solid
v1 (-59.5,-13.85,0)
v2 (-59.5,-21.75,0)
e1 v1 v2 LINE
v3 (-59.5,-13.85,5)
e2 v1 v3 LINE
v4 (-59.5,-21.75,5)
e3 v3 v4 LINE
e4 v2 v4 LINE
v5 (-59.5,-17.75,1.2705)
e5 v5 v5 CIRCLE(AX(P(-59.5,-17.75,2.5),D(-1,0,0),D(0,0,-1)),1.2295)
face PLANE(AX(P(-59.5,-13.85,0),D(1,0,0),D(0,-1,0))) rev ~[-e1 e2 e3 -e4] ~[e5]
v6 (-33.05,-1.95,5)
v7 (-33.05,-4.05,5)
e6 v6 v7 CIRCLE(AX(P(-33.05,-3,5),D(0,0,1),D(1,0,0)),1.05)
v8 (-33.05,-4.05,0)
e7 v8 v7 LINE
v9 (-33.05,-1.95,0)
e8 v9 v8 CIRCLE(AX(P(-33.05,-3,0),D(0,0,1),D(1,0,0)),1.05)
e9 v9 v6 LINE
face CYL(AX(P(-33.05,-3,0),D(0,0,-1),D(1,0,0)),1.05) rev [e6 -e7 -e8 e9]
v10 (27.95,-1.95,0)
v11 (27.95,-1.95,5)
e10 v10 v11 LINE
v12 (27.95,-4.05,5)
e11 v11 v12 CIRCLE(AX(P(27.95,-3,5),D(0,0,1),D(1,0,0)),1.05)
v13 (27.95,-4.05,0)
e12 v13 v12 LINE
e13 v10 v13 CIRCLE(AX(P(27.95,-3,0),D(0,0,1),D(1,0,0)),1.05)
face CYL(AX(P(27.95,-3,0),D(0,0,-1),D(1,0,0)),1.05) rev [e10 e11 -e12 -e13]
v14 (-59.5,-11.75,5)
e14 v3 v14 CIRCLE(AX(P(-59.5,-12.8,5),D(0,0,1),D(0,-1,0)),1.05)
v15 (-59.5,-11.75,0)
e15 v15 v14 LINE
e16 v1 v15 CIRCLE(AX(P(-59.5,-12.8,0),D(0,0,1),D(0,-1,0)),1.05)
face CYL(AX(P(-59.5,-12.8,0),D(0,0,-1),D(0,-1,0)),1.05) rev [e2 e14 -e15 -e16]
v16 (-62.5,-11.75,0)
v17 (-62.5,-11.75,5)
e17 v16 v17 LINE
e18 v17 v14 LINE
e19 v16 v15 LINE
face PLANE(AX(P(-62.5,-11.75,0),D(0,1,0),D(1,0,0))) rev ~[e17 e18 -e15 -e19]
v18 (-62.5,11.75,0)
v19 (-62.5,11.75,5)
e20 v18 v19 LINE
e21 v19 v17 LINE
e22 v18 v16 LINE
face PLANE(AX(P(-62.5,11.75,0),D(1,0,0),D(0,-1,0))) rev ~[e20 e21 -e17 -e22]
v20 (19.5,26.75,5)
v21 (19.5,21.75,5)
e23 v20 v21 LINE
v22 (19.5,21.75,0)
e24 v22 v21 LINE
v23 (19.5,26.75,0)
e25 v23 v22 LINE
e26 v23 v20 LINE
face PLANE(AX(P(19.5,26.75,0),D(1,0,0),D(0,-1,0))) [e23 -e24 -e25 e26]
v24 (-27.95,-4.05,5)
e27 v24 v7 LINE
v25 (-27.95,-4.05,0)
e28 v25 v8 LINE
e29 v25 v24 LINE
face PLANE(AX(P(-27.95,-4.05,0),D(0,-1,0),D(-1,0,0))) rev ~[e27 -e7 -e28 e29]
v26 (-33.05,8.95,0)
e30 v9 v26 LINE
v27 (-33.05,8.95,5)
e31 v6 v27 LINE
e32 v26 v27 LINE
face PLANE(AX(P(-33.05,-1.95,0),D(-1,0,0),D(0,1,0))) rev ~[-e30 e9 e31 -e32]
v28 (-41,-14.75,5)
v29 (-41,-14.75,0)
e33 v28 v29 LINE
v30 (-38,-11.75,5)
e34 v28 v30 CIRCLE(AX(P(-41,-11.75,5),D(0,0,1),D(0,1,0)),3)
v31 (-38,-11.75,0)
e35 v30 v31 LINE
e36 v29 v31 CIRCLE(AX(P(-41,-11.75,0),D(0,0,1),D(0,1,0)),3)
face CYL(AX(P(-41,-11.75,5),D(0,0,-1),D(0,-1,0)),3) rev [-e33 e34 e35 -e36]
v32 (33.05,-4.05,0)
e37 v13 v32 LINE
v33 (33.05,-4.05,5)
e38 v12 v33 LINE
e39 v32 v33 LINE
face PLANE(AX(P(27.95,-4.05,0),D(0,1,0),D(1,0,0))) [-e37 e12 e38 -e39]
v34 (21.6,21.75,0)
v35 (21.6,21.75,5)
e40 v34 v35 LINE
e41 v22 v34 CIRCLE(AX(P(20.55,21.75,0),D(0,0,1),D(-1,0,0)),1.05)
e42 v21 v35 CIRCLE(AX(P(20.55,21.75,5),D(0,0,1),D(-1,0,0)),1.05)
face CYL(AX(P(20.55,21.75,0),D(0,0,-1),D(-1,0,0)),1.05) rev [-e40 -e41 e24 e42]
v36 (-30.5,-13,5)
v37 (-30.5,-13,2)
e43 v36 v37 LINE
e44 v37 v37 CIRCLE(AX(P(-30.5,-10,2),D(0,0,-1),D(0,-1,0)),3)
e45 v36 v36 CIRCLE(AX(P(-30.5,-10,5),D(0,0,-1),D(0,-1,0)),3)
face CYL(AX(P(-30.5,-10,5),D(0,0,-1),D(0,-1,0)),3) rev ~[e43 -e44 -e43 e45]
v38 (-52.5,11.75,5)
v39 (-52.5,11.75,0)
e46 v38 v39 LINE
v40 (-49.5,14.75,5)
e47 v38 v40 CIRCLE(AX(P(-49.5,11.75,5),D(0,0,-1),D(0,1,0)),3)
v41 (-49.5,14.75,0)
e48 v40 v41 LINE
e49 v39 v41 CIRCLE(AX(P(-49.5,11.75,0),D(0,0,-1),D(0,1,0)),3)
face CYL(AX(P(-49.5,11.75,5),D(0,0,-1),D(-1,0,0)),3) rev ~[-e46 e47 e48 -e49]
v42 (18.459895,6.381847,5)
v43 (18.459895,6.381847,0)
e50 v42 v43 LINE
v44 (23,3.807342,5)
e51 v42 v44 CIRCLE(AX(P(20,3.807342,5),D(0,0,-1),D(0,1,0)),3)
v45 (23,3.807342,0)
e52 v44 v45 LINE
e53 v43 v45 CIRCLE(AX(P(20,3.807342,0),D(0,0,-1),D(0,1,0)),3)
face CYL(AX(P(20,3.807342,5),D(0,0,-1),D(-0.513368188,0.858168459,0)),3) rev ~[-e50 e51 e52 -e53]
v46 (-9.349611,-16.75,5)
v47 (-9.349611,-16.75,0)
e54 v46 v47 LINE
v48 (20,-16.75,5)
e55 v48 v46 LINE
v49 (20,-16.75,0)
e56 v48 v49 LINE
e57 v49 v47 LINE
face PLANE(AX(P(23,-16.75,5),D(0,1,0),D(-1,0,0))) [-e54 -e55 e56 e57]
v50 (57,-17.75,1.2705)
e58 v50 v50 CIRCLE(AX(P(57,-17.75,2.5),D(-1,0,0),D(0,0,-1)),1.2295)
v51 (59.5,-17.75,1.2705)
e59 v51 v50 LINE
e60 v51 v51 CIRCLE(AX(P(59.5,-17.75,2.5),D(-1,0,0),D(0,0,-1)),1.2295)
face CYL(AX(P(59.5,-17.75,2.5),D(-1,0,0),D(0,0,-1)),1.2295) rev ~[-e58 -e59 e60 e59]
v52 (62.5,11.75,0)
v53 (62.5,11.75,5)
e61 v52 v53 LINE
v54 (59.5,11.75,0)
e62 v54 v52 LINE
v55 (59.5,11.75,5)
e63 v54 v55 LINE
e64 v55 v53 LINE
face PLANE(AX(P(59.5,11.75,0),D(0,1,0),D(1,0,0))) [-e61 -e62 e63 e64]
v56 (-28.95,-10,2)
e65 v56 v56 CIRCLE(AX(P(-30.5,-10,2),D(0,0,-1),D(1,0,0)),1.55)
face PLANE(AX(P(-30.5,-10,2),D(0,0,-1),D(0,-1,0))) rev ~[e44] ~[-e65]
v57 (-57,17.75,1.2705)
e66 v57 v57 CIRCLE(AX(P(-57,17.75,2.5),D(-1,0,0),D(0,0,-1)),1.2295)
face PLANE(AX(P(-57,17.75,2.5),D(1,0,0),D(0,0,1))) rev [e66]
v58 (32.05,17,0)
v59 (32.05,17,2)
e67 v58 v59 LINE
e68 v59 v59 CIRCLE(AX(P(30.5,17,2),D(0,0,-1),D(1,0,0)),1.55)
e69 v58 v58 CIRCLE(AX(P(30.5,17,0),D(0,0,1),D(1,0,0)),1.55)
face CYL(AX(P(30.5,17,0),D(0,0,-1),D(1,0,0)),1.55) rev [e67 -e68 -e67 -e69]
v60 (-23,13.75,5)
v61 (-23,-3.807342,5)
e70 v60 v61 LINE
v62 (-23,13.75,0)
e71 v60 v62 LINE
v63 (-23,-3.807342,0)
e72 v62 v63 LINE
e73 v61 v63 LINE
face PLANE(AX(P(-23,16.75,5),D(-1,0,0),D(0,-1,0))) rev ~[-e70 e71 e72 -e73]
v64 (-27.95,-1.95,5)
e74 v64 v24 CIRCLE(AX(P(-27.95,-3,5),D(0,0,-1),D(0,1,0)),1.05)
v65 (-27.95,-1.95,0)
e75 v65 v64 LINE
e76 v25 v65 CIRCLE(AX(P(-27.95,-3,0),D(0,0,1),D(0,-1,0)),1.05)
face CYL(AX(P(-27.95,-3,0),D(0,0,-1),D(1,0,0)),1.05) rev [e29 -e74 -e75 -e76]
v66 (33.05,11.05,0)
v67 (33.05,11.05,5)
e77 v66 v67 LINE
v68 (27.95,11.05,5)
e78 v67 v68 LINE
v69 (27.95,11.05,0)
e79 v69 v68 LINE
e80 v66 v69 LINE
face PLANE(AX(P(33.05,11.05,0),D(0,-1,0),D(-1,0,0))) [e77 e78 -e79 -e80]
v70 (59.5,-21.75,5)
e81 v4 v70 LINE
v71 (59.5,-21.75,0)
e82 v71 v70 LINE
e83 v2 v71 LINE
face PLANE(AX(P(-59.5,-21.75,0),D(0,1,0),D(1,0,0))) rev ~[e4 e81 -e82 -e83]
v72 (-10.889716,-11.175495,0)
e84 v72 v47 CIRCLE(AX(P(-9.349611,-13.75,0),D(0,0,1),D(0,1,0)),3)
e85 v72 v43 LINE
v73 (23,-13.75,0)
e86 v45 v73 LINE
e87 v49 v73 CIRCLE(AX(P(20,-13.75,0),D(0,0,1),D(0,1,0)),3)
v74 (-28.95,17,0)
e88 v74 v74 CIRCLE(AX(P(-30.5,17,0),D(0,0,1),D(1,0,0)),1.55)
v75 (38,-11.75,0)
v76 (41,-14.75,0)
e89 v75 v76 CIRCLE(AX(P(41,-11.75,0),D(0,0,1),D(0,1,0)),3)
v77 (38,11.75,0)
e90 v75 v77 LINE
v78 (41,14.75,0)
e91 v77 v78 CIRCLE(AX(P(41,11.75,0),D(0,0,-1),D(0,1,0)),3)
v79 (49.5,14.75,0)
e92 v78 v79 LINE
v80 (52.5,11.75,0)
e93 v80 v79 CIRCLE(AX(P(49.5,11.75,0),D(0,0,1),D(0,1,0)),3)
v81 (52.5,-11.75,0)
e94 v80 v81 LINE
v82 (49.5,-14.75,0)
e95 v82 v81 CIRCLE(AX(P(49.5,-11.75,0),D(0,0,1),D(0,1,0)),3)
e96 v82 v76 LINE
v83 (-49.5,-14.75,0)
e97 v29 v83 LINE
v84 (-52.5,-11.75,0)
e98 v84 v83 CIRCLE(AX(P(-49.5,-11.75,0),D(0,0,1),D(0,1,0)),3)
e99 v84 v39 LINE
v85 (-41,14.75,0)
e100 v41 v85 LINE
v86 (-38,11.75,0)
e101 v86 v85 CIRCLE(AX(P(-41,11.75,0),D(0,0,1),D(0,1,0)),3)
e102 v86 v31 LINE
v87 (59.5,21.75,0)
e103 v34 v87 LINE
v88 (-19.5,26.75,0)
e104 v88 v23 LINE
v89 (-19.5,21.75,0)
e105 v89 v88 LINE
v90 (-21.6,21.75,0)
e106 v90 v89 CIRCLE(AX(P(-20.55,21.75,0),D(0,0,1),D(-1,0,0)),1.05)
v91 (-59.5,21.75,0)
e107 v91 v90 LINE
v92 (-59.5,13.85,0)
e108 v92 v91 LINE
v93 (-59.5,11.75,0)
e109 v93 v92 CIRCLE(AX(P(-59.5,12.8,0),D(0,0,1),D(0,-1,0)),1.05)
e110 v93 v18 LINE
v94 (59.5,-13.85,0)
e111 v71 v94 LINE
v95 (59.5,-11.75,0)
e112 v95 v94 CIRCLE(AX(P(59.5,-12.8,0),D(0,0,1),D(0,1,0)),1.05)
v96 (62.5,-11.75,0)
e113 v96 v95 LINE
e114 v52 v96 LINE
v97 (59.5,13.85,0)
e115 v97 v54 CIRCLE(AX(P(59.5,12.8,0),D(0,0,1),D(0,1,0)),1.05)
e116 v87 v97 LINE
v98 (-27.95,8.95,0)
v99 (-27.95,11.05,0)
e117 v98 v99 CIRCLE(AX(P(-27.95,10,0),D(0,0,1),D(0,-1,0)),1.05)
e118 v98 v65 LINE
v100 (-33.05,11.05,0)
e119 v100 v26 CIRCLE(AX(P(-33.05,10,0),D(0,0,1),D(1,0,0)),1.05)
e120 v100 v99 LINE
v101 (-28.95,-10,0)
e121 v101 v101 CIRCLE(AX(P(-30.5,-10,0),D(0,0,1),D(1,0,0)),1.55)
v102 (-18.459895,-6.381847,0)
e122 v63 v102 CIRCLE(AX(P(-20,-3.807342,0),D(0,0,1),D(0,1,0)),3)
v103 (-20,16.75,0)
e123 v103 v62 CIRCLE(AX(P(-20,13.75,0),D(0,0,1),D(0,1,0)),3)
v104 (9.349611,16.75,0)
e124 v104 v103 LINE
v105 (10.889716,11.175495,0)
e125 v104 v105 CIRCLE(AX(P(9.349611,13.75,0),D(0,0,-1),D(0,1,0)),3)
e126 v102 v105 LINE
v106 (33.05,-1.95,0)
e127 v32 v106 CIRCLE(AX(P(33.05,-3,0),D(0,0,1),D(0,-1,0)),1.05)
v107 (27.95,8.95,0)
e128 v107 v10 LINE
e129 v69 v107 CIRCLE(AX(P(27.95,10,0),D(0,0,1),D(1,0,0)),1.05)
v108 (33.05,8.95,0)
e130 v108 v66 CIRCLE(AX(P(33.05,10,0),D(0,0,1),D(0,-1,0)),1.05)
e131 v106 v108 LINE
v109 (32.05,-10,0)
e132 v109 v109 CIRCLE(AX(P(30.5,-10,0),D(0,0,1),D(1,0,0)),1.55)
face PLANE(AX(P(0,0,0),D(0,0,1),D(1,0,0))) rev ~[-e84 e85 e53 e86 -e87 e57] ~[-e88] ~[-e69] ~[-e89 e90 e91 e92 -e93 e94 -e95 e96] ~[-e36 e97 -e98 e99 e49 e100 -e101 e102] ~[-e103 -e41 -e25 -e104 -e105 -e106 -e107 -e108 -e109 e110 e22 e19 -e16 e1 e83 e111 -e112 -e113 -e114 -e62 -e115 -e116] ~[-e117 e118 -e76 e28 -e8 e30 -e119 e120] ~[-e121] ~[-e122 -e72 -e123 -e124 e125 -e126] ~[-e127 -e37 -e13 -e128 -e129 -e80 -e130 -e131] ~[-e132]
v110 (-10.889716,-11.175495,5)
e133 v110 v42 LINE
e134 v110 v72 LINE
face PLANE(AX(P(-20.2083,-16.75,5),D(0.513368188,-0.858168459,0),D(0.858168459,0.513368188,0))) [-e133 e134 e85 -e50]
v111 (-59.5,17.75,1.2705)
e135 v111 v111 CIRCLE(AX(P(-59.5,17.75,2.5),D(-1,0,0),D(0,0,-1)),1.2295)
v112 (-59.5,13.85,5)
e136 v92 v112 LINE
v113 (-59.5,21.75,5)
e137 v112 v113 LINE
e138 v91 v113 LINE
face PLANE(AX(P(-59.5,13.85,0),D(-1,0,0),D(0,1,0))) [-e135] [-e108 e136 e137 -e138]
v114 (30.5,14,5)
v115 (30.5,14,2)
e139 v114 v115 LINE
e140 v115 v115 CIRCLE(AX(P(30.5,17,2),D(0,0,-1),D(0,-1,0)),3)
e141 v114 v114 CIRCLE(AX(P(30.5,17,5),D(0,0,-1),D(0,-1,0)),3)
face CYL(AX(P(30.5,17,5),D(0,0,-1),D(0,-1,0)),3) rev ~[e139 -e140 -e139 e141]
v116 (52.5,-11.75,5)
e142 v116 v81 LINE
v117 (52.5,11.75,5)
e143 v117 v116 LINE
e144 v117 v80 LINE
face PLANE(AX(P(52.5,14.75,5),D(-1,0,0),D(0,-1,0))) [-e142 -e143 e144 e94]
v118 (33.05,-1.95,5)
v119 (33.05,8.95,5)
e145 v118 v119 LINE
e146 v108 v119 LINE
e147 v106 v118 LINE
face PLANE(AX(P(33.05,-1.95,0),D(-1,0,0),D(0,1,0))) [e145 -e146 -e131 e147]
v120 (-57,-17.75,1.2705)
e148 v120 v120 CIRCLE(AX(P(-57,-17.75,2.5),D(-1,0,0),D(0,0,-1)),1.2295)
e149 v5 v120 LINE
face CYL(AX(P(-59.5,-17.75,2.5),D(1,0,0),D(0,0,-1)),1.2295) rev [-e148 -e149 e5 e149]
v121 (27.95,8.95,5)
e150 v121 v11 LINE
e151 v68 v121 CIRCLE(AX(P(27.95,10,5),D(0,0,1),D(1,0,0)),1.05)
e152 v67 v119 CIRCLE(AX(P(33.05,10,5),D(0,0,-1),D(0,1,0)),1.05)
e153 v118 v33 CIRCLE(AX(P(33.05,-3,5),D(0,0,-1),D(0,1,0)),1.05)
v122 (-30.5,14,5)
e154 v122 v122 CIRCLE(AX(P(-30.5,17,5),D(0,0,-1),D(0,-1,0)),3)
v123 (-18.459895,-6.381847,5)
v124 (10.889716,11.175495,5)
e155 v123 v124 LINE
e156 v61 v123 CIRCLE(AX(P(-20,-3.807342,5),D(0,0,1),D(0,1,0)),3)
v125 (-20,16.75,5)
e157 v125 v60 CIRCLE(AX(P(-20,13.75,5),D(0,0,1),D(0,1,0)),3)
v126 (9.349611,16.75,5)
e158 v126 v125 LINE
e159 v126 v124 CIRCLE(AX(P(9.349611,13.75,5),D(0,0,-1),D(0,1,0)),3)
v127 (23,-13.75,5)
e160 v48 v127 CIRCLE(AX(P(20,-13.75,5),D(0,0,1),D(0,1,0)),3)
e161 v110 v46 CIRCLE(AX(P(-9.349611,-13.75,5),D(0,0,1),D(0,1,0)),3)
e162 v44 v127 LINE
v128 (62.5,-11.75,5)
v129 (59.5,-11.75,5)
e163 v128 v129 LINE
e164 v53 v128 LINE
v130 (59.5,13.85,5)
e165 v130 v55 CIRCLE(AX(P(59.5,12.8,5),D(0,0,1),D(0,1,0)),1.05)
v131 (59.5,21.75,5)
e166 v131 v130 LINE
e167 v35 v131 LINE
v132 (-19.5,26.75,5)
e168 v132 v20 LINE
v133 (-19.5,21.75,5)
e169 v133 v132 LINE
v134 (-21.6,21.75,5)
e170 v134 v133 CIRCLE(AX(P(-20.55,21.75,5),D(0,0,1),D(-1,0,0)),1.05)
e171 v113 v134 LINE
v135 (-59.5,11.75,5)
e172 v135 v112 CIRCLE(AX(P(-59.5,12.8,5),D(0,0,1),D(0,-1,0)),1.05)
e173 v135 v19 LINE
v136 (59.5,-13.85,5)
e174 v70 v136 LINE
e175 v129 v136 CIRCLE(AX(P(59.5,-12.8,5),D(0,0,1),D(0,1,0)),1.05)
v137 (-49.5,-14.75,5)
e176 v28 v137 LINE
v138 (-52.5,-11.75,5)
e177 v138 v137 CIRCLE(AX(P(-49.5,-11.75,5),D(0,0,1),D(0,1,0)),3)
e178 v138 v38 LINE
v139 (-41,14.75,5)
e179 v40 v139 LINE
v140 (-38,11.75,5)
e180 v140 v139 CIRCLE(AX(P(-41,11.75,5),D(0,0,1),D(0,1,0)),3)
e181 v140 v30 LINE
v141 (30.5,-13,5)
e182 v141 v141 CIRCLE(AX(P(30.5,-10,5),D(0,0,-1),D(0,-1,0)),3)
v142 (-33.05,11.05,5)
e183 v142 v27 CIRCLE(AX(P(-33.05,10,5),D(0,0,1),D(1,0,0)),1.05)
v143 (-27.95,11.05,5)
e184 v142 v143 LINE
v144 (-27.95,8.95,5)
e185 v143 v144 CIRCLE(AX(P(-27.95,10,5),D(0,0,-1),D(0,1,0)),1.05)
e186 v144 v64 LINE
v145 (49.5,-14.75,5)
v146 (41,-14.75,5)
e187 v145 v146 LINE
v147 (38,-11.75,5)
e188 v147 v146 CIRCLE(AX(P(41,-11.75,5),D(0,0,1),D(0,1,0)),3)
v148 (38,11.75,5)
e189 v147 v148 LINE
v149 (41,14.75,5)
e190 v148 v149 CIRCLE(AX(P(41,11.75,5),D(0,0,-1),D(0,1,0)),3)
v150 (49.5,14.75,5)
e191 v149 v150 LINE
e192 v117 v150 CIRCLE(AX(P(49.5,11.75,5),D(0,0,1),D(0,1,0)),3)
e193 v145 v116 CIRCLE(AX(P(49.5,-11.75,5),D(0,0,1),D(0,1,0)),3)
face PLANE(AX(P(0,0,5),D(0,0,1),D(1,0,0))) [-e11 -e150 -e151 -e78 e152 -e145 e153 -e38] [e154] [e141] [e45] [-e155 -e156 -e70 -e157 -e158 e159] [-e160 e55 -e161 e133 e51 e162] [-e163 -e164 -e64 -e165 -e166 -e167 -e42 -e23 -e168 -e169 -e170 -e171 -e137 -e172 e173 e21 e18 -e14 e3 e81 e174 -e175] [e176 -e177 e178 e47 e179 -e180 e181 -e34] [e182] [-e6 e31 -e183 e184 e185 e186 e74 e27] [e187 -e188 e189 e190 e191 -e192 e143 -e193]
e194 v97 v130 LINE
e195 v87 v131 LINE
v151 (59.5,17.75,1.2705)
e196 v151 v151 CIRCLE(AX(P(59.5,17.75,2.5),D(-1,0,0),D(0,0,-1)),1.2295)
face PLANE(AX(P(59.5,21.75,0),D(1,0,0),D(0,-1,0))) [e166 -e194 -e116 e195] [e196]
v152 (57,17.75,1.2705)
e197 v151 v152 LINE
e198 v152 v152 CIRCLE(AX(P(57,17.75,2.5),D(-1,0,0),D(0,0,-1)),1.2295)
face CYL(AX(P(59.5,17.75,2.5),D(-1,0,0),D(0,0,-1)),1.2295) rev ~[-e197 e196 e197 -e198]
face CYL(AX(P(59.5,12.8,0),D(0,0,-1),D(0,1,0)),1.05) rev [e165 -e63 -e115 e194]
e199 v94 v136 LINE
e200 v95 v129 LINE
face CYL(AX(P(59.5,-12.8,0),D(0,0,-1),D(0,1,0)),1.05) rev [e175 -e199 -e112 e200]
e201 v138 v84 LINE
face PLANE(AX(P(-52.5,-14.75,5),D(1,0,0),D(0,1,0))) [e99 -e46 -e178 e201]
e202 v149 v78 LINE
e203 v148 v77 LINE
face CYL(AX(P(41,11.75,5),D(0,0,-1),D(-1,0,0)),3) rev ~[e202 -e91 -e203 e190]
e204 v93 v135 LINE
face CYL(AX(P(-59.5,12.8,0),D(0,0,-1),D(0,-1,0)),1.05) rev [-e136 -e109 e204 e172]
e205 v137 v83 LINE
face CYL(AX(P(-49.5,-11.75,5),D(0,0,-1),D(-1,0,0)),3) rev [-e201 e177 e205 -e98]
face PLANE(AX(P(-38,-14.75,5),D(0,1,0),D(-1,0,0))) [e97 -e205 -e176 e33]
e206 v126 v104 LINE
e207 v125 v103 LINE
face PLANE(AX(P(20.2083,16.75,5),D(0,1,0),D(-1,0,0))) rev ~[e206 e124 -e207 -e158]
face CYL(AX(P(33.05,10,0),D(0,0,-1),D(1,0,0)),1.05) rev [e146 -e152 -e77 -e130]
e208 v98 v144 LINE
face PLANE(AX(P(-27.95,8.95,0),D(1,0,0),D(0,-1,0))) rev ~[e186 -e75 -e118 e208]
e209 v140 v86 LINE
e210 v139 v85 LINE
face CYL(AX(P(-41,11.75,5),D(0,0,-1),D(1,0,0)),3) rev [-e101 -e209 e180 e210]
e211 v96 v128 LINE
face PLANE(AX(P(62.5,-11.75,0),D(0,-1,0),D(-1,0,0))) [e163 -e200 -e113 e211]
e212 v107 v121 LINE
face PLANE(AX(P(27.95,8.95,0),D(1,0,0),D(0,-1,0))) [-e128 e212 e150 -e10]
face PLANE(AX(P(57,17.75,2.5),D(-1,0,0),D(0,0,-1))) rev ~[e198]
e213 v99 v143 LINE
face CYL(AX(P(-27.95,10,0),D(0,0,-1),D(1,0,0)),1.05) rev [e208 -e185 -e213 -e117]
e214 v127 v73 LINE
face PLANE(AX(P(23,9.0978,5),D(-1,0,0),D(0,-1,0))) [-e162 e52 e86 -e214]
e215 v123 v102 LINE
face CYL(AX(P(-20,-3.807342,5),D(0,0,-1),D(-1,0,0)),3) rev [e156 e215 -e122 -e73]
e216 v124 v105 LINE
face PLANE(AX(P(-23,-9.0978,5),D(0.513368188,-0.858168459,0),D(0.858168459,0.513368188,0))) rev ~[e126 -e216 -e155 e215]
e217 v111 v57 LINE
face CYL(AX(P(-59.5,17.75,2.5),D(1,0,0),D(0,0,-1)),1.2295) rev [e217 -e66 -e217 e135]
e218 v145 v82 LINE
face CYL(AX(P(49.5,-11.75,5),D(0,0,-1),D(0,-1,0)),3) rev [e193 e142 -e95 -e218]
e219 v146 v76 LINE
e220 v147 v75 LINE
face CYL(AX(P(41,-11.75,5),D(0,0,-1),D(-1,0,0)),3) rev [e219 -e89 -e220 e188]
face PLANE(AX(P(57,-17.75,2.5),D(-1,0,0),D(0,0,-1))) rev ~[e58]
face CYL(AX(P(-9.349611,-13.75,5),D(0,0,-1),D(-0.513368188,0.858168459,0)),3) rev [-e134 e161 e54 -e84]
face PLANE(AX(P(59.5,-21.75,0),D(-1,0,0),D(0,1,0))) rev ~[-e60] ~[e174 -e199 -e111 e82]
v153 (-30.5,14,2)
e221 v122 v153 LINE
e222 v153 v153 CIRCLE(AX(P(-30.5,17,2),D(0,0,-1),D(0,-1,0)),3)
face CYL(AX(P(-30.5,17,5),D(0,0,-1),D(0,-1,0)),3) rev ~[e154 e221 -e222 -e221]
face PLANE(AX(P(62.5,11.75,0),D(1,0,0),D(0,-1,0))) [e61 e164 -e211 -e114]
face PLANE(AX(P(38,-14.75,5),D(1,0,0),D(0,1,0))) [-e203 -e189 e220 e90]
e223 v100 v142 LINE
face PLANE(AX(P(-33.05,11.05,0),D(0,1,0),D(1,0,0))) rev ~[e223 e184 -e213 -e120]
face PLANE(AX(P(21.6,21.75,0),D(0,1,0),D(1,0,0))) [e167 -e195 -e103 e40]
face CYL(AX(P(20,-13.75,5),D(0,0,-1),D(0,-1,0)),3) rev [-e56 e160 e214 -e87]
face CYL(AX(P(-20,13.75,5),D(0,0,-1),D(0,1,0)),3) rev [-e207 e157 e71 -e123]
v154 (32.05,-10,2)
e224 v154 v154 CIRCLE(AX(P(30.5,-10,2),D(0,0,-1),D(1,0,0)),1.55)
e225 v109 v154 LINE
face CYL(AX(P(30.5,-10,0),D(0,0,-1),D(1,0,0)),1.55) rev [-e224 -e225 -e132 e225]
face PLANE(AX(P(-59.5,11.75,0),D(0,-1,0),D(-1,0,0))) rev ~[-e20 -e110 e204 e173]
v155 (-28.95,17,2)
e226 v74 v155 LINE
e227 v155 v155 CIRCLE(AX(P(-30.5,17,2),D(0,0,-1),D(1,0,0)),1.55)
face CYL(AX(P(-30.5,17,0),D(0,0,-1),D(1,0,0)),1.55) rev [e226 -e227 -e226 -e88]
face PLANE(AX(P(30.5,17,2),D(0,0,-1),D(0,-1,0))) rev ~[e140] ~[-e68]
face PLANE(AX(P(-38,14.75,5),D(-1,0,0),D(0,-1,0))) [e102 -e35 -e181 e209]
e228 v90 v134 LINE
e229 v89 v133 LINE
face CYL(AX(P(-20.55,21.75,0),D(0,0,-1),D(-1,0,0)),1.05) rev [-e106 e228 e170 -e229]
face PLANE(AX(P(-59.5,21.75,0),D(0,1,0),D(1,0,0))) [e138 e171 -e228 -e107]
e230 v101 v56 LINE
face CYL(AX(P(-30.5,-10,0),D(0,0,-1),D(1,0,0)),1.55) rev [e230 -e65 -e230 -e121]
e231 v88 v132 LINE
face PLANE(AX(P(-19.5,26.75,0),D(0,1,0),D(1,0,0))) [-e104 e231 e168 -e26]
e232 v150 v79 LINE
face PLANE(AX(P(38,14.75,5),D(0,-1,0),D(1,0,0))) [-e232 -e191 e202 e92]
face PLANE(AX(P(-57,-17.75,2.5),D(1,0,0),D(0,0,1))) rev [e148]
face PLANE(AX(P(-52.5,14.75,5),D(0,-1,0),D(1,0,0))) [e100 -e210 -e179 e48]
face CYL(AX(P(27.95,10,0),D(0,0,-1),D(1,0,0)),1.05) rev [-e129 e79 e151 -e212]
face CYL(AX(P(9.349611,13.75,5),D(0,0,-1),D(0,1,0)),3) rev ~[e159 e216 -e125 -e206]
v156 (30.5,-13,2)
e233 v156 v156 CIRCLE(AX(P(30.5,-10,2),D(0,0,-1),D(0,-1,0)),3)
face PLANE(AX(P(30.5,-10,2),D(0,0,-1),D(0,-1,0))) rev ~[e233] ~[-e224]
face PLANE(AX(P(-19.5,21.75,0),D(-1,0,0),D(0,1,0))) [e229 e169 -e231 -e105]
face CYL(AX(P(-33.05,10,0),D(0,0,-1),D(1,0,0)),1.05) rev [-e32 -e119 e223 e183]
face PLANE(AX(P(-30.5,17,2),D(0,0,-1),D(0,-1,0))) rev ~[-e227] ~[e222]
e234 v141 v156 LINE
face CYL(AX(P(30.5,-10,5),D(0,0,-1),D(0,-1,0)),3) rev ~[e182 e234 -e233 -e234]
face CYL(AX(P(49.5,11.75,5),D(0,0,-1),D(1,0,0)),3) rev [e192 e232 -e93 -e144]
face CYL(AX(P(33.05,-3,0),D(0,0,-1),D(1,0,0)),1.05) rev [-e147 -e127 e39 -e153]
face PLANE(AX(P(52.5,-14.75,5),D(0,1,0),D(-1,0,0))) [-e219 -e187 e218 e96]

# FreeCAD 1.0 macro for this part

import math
import FreeCAD as App
import Part
import Sketcher

V = App.Vector


def edges_at(feature, points):
    """Names of the edges that pass closest to the given points."""
    edges = feature.Shape.Edges
    near = lambda p: min(range(len(edges)), key=lambda i: edges[i].distToShape(Part.Vertex(*p))[0])
    return sorted({f"Edge{near(p) + 1}" for p in points})

doc = App.newDocument("Part")
body = doc.addObject("PartDesign::Body", "Body")

# Sketch on XY plane
sketch1 = body.newObject("Sketcher::SketchObject", "Sketch")
sketch1.AttachmentSupport = (doc.getObject("XY_Plane"), [""])
sketch1.MapMode = "FlatFace"
sketch1.addGeometry(Part.ArcOfCircle(Part.Circle(V(-59.5, 12.8, 0), V(0, 0, 1), 1.1), math.radians(-90), math.radians(90)), False)
sketch1.addGeometry(Part.LineSegment(V(-59.5, 11.8, 0), V(-62.5, 11.8, 0)), False)
sketch1.addGeometry(Part.LineSegment(V(-62.5, 11.8, 0), V(-62.5, -11.8, 0)), False)
sketch1.addGeometry(Part.LineSegment(V(-62.5, -11.8, 0), V(-59.5, -11.8, 0)), False)
sketch1.addGeometry(Part.ArcOfCircle(Part.Circle(V(-59.5, -12.8, 0), V(0, 0, 1), 1), math.radians(-90), math.radians(90)), False)
sketch1.addGeometry(Part.LineSegment(V(-59.5, -13.8, 0), V(-59.5, -21.8, 0)), False)
sketch1.addGeometry(Part.LineSegment(V(-59.5, -21.8, 0), V(59.5, -21.8, 0)), False)
sketch1.addGeometry(Part.LineSegment(V(59.5, -21.8, 0), V(59.5, -13.8, 0)), False)
sketch1.addGeometry(Part.ArcOfCircle(Part.Circle(V(59.5, -12.8, 0), V(0, 0, 1), 1.1), math.radians(90), math.radians(270)), False)
sketch1.addGeometry(Part.LineSegment(V(59.5, -11.8, 0), V(62.5, -11.8, 0)), False)
sketch1.addGeometry(Part.LineSegment(V(62.5, -11.8, 0), V(62.5, 11.8, 0)), False)
sketch1.addGeometry(Part.LineSegment(V(62.5, 11.8, 0), V(59.5, 11.8, 0)), False)
sketch1.addGeometry(Part.ArcOfCircle(Part.Circle(V(59.5, 12.8, 0), V(0, 0, 1), 1), math.radians(90), math.radians(270)), False)
sketch1.addGeometry(Part.LineSegment(V(59.5, 13.8, 0), V(59.5, 21.8, 0)), False)
sketch1.addGeometry(Part.LineSegment(V(59.5, 21.8, 0), V(21.6, 21.8, 0)), False)
sketch1.addGeometry(Part.ArcOfCircle(Part.Circle(V(20.6, 21.8, 0), V(0, 0, 1), 1.1), math.radians(180), math.radians(360)), False)
sketch1.addGeometry(Part.LineSegment(V(19.5, 21.8, 0), V(19.5, 26.8, 0)), False)
sketch1.addGeometry(Part.LineSegment(V(19.5, 26.8, 0), V(-19.5, 26.8, 0)), False)
sketch1.addGeometry(Part.LineSegment(V(-19.5, 26.8, 0), V(-19.5, 21.8, 0)), False)
sketch1.addGeometry(Part.ArcOfCircle(Part.Circle(V(-20.6, 21.8, 0), V(0, 0, 1), 1.1), math.radians(180), math.radians(360)), False)
sketch1.addGeometry(Part.LineSegment(V(-21.6, 21.8, 0), V(-59.5, 21.8, 0)), False)
sketch1.addGeometry(Part.LineSegment(V(-59.5, 21.8, 0), V(-59.5, 13.8, 0)), False)
sketch1.addGeometry(Part.Circle(V(-30.5, -10, 0), V(0, 0, 1), 1.6), False)
sketch1.addGeometry(Part.Circle(V(30.5, -10, 0), V(0, 0, 1), 1.6), False)
sketch1.addGeometry(Part.ArcOfCircle(Part.Circle(V(-33, 10, 0), V(0, 0, 1), 1.1), math.radians(90), math.radians(270)), False)
sketch1.addGeometry(Part.LineSegment(V(-33, 11.1, 0), V(-27.9, 11.1, 0)), False)
sketch1.addGeometry(Part.ArcOfCircle(Part.Circle(V(-27.9, 10, 0), V(0, 0, 1), 1.1), math.radians(-90), math.radians(90)), False)
sketch1.addGeometry(Part.LineSegment(V(-27.9, 8.9, 0), V(-27.9, -1.9, 0)), False)
sketch1.addGeometry(Part.ArcOfCircle(Part.Circle(V(-27.9, -3, 0), V(0, 0, 1), 1.1), math.radians(-90), math.radians(90)), False)
sketch1.addGeometry(Part.LineSegment(V(-27.9, -4, 0), V(-33, -4, 0)), False)
sketch1.addGeometry(Part.ArcOfCircle(Part.Circle(V(-33, -3, 0), V(0, 0, 1), 1.1), math.radians(90), math.radians(270)), False)
sketch1.addGeometry(Part.LineSegment(V(-33, -1.9, 0), V(-33, 8.9, 0)), False)
sketch1.addGeometry(Part.Circle(V(-30.5, 17, 0), V(0, 0, 1), 1.6), False)
sketch1.addGeometry(Part.ArcOfCircle(Part.Circle(V(27.9, 10, 0), V(0, 0, 1), 1.1), math.radians(90), math.radians(270)), False)
sketch1.addGeometry(Part.LineSegment(V(27.9, 11.1, 0), V(33, 11.1, 0)), False)
sketch1.addGeometry(Part.ArcOfCircle(Part.Circle(V(33, 10, 0), V(0, 0, 1), 1.1), math.radians(-90), math.radians(90)), False)
sketch1.addGeometry(Part.LineSegment(V(33, 8.9, 0), V(33, -1.9, 0)), False)
sketch1.addGeometry(Part.ArcOfCircle(Part.Circle(V(33, -3, 0), V(0, 0, 1), 1.1), math.radians(-90), math.radians(90)), False)
sketch1.addGeometry(Part.LineSegment(V(33, -4, 0), V(27.9, -4, 0)), False)
sketch1.addGeometry(Part.ArcOfCircle(Part.Circle(V(27.9, -3, 0), V(0, 0, 1), 1.1), math.radians(90), math.radians(270)), False)
sketch1.addGeometry(Part.LineSegment(V(27.9, -1.9, 0), V(27.9, 8.9, 0)), False)
sketch1.addGeometry(Part.Circle(V(30.5, 17, 0), V(0, 0, 1), 1.6), False)
sketch1.addConstraint(Sketcher.Constraint("Tangent", 0, 1, 1, 1))
sketch1.addConstraint(Sketcher.Constraint("Coincident", 1, 2, 2, 1))
sketch1.addConstraint(Sketcher.Constraint("Coincident", 2, 2, 3, 1))
sketch1.addConstraint(Sketcher.Constraint("Tangent", 3, 2, 4, 2))
sketch1.addConstraint(Sketcher.Constraint("Coincident", 4, 1, 5, 1))
sketch1.addConstraint(Sketcher.Constraint("Coincident", 5, 2, 6, 1))
sketch1.addConstraint(Sketcher.Constraint("Coincident", 6, 2, 7, 1))
sketch1.addConstraint(Sketcher.Constraint("Coincident", 7, 2, 8, 2))
sketch1.addConstraint(Sketcher.Constraint("Tangent", 8, 1, 9, 1))
sketch1.addConstraint(Sketcher.Constraint("Coincident", 9, 2, 10, 1))
sketch1.addConstraint(Sketcher.Constraint("Coincident", 10, 2, 11, 1))
sketch1.addConstraint(Sketcher.Constraint("Tangent", 11, 2, 12, 2))
sketch1.addConstraint(Sketcher.Constraint("Coincident", 12, 1, 13, 1))
sketch1.addConstraint(Sketcher.Constraint("Coincident", 13, 2, 14, 1))
sketch1.addConstraint(Sketcher.Constraint("Coincident", 14, 2, 15, 2))
sketch1.addConstraint(Sketcher.Constraint("Tangent", 15, 1, 16, 1))
sketch1.addConstraint(Sketcher.Constraint("Coincident", 16, 2, 17, 1))
sketch1.addConstraint(Sketcher.Constraint("Coincident", 17, 2, 18, 1))
sketch1.addConstraint(Sketcher.Constraint("Tangent", 18, 2, 19, 2))
sketch1.addConstraint(Sketcher.Constraint("Coincident", 19, 1, 20, 1))
sketch1.addConstraint(Sketcher.Constraint("Coincident", 20, 2, 21, 1))
sketch1.addConstraint(Sketcher.Constraint("Coincident", 21, 2, 0, 2))
sketch1.addConstraint(Sketcher.Constraint("Tangent", 24, 1, 25, 1))
sketch1.addConstraint(Sketcher.Constraint("Tangent", 25, 2, 26, 2))
sketch1.addConstraint(Sketcher.Constraint("Coincident", 26, 1, 27, 1))
sketch1.addConstraint(Sketcher.Constraint("Coincident", 27, 2, 28, 2))
sketch1.addConstraint(Sketcher.Constraint("Tangent", 28, 1, 29, 1))
sketch1.addConstraint(Sketcher.Constraint("Tangent", 29, 2, 30, 2))
sketch1.addConstraint(Sketcher.Constraint("Coincident", 30, 1, 31, 1))
sketch1.addConstraint(Sketcher.Constraint("Coincident", 31, 2, 24, 2))
sketch1.addConstraint(Sketcher.Constraint("Tangent", 33, 1, 34, 1))
sketch1.addConstraint(Sketcher.Constraint("Tangent", 34, 2, 35, 2))
sketch1.addConstraint(Sketcher.Constraint("Coincident", 35, 1, 36, 1))
sketch1.addConstraint(Sketcher.Constraint("Coincident", 36, 2, 37, 2))
sketch1.addConstraint(Sketcher.Constraint("Tangent", 37, 1, 38, 1))
sketch1.addConstraint(Sketcher.Constraint("Tangent", 38, 2, 39, 2))
sketch1.addConstraint(Sketcher.Constraint("Coincident", 39, 1, 40, 1))
sketch1.addConstraint(Sketcher.Constraint("Coincident", 40, 2, 33, 2))
sketch1.addConstraint(Sketcher.Constraint("Horizontal", 1))
sketch1.addConstraint(Sketcher.Constraint("Vertical", 2))
sketch1.addConstraint(Sketcher.Constraint("Horizontal", 3))
sketch1.addConstraint(Sketcher.Constraint("Vertical", 5))
sketch1.addConstraint(Sketcher.Constraint("Horizontal", 6))
sketch1.addConstraint(Sketcher.Constraint("Vertical", 7))
sketch1.addConstraint(Sketcher.Constraint("Horizontal", 9))
sketch1.addConstraint(Sketcher.Constraint("Vertical", 10))
sketch1.addConstraint(Sketcher.Constraint("Horizontal", 11))
sketch1.addConstraint(Sketcher.Constraint("Vertical", 13))
sketch1.addConstraint(Sketcher.Constraint("Horizontal", 14))
sketch1.addConstraint(Sketcher.Constraint("Vertical", 16))
sketch1.addConstraint(Sketcher.Constraint("Horizontal", 17))
sketch1.addConstraint(Sketcher.Constraint("Vertical", 18))
sketch1.addConstraint(Sketcher.Constraint("Horizontal", 20))
sketch1.addConstraint(Sketcher.Constraint("Vertical", 21))
sketch1.addConstraint(Sketcher.Constraint("Horizontal", 25))
sketch1.addConstraint(Sketcher.Constraint("Vertical", 27))
sketch1.addConstraint(Sketcher.Constraint("Horizontal", 29))
sketch1.addConstraint(Sketcher.Constraint("Vertical", 31))
sketch1.addConstraint(Sketcher.Constraint("Horizontal", 34))
sketch1.addConstraint(Sketcher.Constraint("Vertical", 36))
sketch1.addConstraint(Sketcher.Constraint("Horizontal", 38))
sketch1.addConstraint(Sketcher.Constraint("Vertical", 40))
sketch1.addConstraint(Sketcher.Constraint("Equal", 0, 4))
sketch1.addConstraint(Sketcher.Constraint("Equal", 4, 8))
sketch1.addConstraint(Sketcher.Constraint("Equal", 8, 12))
sketch1.addConstraint(Sketcher.Constraint("Equal", 12, 15))
sketch1.addConstraint(Sketcher.Constraint("Equal", 15, 19))
sketch1.addConstraint(Sketcher.Constraint("Equal", 22, 23))
sketch1.addConstraint(Sketcher.Constraint("Equal", 19, 24))
sketch1.addConstraint(Sketcher.Constraint("Equal", 24, 26))
sketch1.addConstraint(Sketcher.Constraint("Equal", 26, 28))
sketch1.addConstraint(Sketcher.Constraint("Equal", 28, 30))
sketch1.addConstraint(Sketcher.Constraint("Equal", 23, 32))
sketch1.addConstraint(Sketcher.Constraint("Equal", 30, 33))
sketch1.addConstraint(Sketcher.Constraint("Equal", 33, 35))
sketch1.addConstraint(Sketcher.Constraint("Equal", 35, 37))
sketch1.addConstraint(Sketcher.Constraint("Equal", 37, 39))
sketch1.addConstraint(Sketcher.Constraint("Equal", 32, 41))
sketch1.addConstraint(Sketcher.Constraint("Symmetric", 0, 3, 8, 3, -1, 1))
sketch1.addConstraint(Sketcher.Constraint("Symmetric", 4, 3, 12, 3, -1, 1))
sketch1.addConstraint(Sketcher.Constraint("Symmetric", 5, 2, 13, 2, -1, 1))
sketch1.addConstraint(Sketcher.Constraint("Symmetric", 6, 2, 20, 2, -1, 1))
sketch1.addConstraint(Sketcher.Constraint("Symmetric", 4, 3, 8, 3, -2))
sketch1.addConstraint(Sketcher.Constraint("Symmetric", 15, 3, 19, 3, -2))
sketch1.addConstraint(Sketcher.Constraint("Symmetric", 22, 3, 23, 3, -2))
sketch1.addConstraint(Sketcher.Constraint("Symmetric", 26, 3, 33, 3, -2))
sketch1.addConstraint(Sketcher.Constraint("Symmetric", 30, 3, 37, 3, -2))
sketch1.addConstraint(Sketcher.Constraint("Symmetric", 32, 3, 41, 3, -2))
sketch1.addConstraint(Sketcher.Constraint("Horizontal", 19, 3, 13, 2))
sketch1.addConstraint(Sketcher.Constraint("Vertical", 26, 3, 28, 3))
sketch1.addConstraint(Sketcher.Constraint("Vertical", 24, 3, 30, 3))
sketch1.addConstraint(Sketcher.Constraint("Vertical", 22, 3, 32, 3))
sketch1.addConstraint(Sketcher.Constraint("Vertical", 35, 3, 37, 3))
sketch1.addConstraint(Sketcher.Constraint("Vertical", 33, 3, 39, 3))
sketch1.addConstraint(Sketcher.Constraint("Vertical", 3, 2, 4, 1))
sketch1.addConstraint(Sketcher.Constraint("Vertical", 12, 3, 6, 2))
sketch1.addConstraint(Sketcher.Constraint("Vertical", 25, 2, 26, 1))
sketch1.addConstraint(Sketcher.Constraint("Vertical", 29, 2, 30, 1))
sketch1.addConstraint(Sketcher.Constraint("Vertical", 34, 2, 35, 1))
sketch1.addConstraint(Sketcher.Constraint("Vertical", 38, 2, 39, 1))
sketch1.addConstraint(Sketcher.Constraint("Equal", 3, 9))
sketch1.addConstraint(Sketcher.Constraint("Diameter", 22, 3.1))
sketch1.addConstraint(Sketcher.Constraint("DistanceX", 1, 2, 1, 1, 3.0))
sketch1.addConstraint(Sketcher.Constraint("DistanceY", 16, 1, 16, 2, 5.0))
sketch1.addConstraint(Sketcher.Constraint("Radius", 0, 1.05))
sketch1.addConstraint(Sketcher.Constraint("DistanceY", 22, 3, -1, 1, 10.0))
sketch1.addConstraint(Sketcher.Constraint("DistanceY", -1, 1, 24, 3, 10.0))
sketch1.addConstraint(Sketcher.Constraint("DistanceY", 28, 3, -1, 1, 3.0))
sketch1.addConstraint(Sketcher.Constraint("DistanceY", -1, 1, 32, 3, 17.0))
sketch1.addConstraint(Sketcher.Constraint("DistanceY", 5, 2, 3, 2, 10.0))
sketch1.addConstraint(Sketcher.Constraint("DistanceX", 6, 1, 6, 2, 119.0))
sketch1.addConstraint(Sketcher.Constraint("DistanceX", 17, 2, 17, 1, 39.0))
sketch1.addConstraint(Sketcher.Constraint("DistanceX", 25, 1, 25, 2, 5.1))
sketch1.addConstraint(Sketcher.Constraint("DistanceY", 2, 2, 2, 1, 23.5))
sketch1.addConstraint(Sketcher.Constraint("DistanceX", 4, 3, 22, 3, 29.0))
sketch1.addConstraint(Sketcher.Constraint("DistanceX", 24, 3, 19, 3, 12.5))
pad1 = body.newObject("PartDesign::Pad", "Pad")
pad1.Profile = sketch1
pad1.Length = 5

# Sketch on XY plane
sketch2 = body.newObject("Sketcher::SketchObject", "Sketch001")
sketch2.AttachmentSupport = (doc.getObject("XY_Plane"), [""])
sketch2.MapMode = "FlatFace"
sketch2.AttachmentOffset = App.Placement(V(0, 0, 5), App.Rotation())
sketch2.addGeometry(Part.Circle(V(-30.5, 17, 0), V(0, 0, 1), 3), False)
sketch2.addGeometry(Part.Circle(V(-30.5, -10, 0), V(0, 0, 1), 3), False)
sketch2.addGeometry(Part.Circle(V(30.5, 17, 0), V(0, 0, 1), 3), False)
sketch2.addGeometry(Part.Circle(V(30.5, -10, 0), V(0, 0, 1), 3), False)
sketch2.addConstraint(Sketcher.Constraint("Equal", 0, 1))
sketch2.addConstraint(Sketcher.Constraint("Equal", 1, 2))
sketch2.addConstraint(Sketcher.Constraint("Equal", 2, 3))
sketch2.addConstraint(Sketcher.Constraint("Symmetric", 0, 3, 2, 3, -2))
sketch2.addConstraint(Sketcher.Constraint("Symmetric", 1, 3, 3, 3, -2))
sketch2.addConstraint(Sketcher.Constraint("Vertical", 0, 3, 1, 3))
sketch2.addConstraint(Sketcher.Constraint("Diameter", 0, 6.0))
sketch2.addConstraint(Sketcher.Constraint("DistanceY", -1, 1, 0, 3, 17.0))
sketch2.addConstraint(Sketcher.Constraint("DistanceY", 1, 3, -1, 1, 10.0))
sketch2.addConstraint(Sketcher.Constraint("DistanceX", 0, 3, 2, 3, 61.0))
doc.recompute()
hole = body.newObject("PartDesign::Hole", "Hole")
hole.Profile = sketch2
hole.ThreadType = "None"
hole.Diameter = 6
hole.DepthType = "Dimension"
hole.Depth = 3
hole.DrillPoint = "Flat"

# Sketch on YZ plane
sketch3 = body.newObject("Sketcher::SketchObject", "Sketch002")
sketch3.AttachmentSupport = (doc.getObject("YZ_Plane"), [""])
sketch3.MapMode = "FlatFace"
sketch3.AttachmentOffset = App.Placement(V(0, 0, 59.5), App.Rotation())
sketch3.addGeometry(Part.Circle(V(-17.8, 2.5, 0), V(0, 0, 1), 1.2), False)
sketch3.addGeometry(Part.Circle(V(17.8, 2.5, 0), V(0, 0, 1), 1.2), False)
sketch3.addConstraint(Sketcher.Constraint("Equal", 0, 1))
sketch3.addConstraint(Sketcher.Constraint("Symmetric", 0, 3, 1, 3, -2))
sketch3.addConstraint(Sketcher.Constraint("Diameter", 0, 2.459))
sketch3.addConstraint(Sketcher.Constraint("DistanceY", -1, 1, 0, 3, 2.5))
sketch3.addConstraint(Sketcher.Constraint("DistanceX", 0, 3, 1, 3, 35.5))
doc.recompute()
hole2 = body.newObject("PartDesign::Hole", "Hole001")
hole2.Profile = sketch3
hole2.ThreadType = "None"
hole2.Diameter = 2.459
hole2.DepthType = "Dimension"
hole2.Depth = 2.5
hole2.DrillPoint = "Flat"
doc.recompute()

mirrored = body.newObject("PartDesign::Mirrored", "Mirrored")
mirrored.Originals = [hole2]
mirrored.MirrorPlane = (doc.getObject("YZ_Plane"), [""])
body.Tip = mirrored

# Sketch on XY plane
sketch4 = body.newObject("Sketcher::SketchObject", "Sketch003")
sketch4.AttachmentSupport = (doc.getObject("XY_Plane"), [""])
sketch4.MapMode = "FlatFace"
sketch4.AttachmentOffset = App.Placement(V(0, 0, 5), App.Rotation())
sketch4.addGeometry(Part.LineSegment(V(-38, 15, 0), V(-52, 15, 0)), False)
sketch4.addGeometry(Part.LineSegment(V(-52, 15, 0), V(-52, -15, 0)), False)
sketch4.addGeometry(Part.LineSegment(V(-52, -15, 0), V(-38, -15, 0)), False)
sketch4.addGeometry(Part.LineSegment(V(-38, -15, 0), V(-38, 15, 0)), False)
sketch4.addGeometry(Part.LineSegment(V(52, 15, 0), V(38, 15, 0)), False)
sketch4.addGeometry(Part.LineSegment(V(38, 15, 0), V(38, -15, 0)), False)
sketch4.addGeometry(Part.LineSegment(V(38, -15, 0), V(52, -15, 0)), False)
sketch4.addGeometry(Part.LineSegment(V(52, -15, 0), V(52, 15, 0)), False)
sketch4.addGeometry(Part.LineSegment(V(20, 17, 0), V(-23, 17, 0)), False)
sketch4.addGeometry(Part.LineSegment(V(-23, 17, 0), V(-23, -9, 0)), False)
sketch4.addGeometry(Part.LineSegment(V(-23, -9, 0), V(20, 17, 0)), False)
sketch4.addGeometry(Part.LineSegment(V(23, -17, 0), V(23, 9, 0)), False)
sketch4.addGeometry(Part.LineSegment(V(23, 9, 0), V(-20, -17, 0)), False)
sketch4.addGeometry(Part.LineSegment(V(-20, -17, 0), V(23, -17, 0)), False)
sketch4.addConstraint(Sketcher.Constraint("Coincident", 0, 2, 1, 1))
sketch4.addConstraint(Sketcher.Constraint("Coincident", 1, 2, 2, 1))
sketch4.addConstraint(Sketcher.Constraint("Coincident", 2, 2, 3, 1))
sketch4.addConstraint(Sketcher.Constraint("Coincident", 3, 2, 0, 1))
sketch4.addConstraint(Sketcher.Constraint("Coincident", 4, 2, 5, 1))
sketch4.addConstraint(Sketcher.Constraint("Coincident", 5, 2, 6, 1))
sketch4.addConstraint(Sketcher.Constraint("Coincident", 6, 2, 7, 1))
sketch4.addConstraint(Sketcher.Constraint("Coincident", 7, 2, 4, 1))
sketch4.addConstraint(Sketcher.Constraint("Coincident", 8, 2, 9, 1))
sketch4.addConstraint(Sketcher.Constraint("Coincident", 9, 2, 10, 1))
sketch4.addConstraint(Sketcher.Constraint("Coincident", 10, 2, 8, 1))
sketch4.addConstraint(Sketcher.Constraint("Coincident", 11, 2, 12, 1))
sketch4.addConstraint(Sketcher.Constraint("Coincident", 12, 2, 13, 1))
sketch4.addConstraint(Sketcher.Constraint("Coincident", 13, 2, 11, 1))
sketch4.addConstraint(Sketcher.Constraint("Horizontal", 0))
sketch4.addConstraint(Sketcher.Constraint("Vertical", 1))
sketch4.addConstraint(Sketcher.Constraint("Horizontal", 2))
sketch4.addConstraint(Sketcher.Constraint("Vertical", 3))
sketch4.addConstraint(Sketcher.Constraint("Horizontal", 4))
sketch4.addConstraint(Sketcher.Constraint("Vertical", 5))
sketch4.addConstraint(Sketcher.Constraint("Horizontal", 6))
sketch4.addConstraint(Sketcher.Constraint("Vertical", 7))
sketch4.addConstraint(Sketcher.Constraint("Horizontal", 8))
sketch4.addConstraint(Sketcher.Constraint("Vertical", 9))
sketch4.addConstraint(Sketcher.Constraint("Vertical", 11))
sketch4.addConstraint(Sketcher.Constraint("Horizontal", 13))
sketch4.addConstraint(Sketcher.Constraint("Symmetric", 2, 2, 4, 2, -1, 1))
sketch4.addConstraint(Sketcher.Constraint("Symmetric", 0, 2, 6, 2, -1, 1))
sketch4.addConstraint(Sketcher.Constraint("Symmetric", 9, 2, 11, 2, -1, 1))
sketch4.addConstraint(Sketcher.Constraint("Symmetric", 10, 2, 12, 2, -1, 1))
sketch4.addConstraint(Sketcher.Constraint("Horizontal", 3, 2, 4, 2))
sketch4.addConstraint(Sketcher.Constraint("DistanceX", 0, 2, 0, 1, 14.5))
sketch4.addConstraint(Sketcher.Constraint("DistanceY", 1, 2, 1, 1, 29.5))
sketch4.addConstraint(Sketcher.Constraint("DistanceX", 2, 2, -1, 1, 38.0))
sketch4.addConstraint(Sketcher.Constraint("DistanceX", 8, 2, -1, 1, 23.0))
sketch4.addConstraint(Sketcher.Constraint("DistanceY", 3, 2, 8, 2, 2.0))
sketch4.addConstraint(Sketcher.Constraint("DistanceX", 8, 2, 8, 1, 43.2083))
sketch4.addConstraint(Sketcher.Constraint("DistanceY", 9, 2, 9, 1, 25.8478))
pocket1 = body.newObject("PartDesign::Pocket", "Pocket")
pocket1.Profile = sketch4
pocket1.Length = 10
doc.recompute()

fillet = body.newObject("PartDesign::Fillet", "Fillet")
fillet.Base = (pocket1, edges_at(pocket1, [
    (-38, 14.75, 2.5),
    (-52.5, 14.75, 2.5),
    (-52.5, -14.75, 2.5),
    (-38, -14.75, 2.5),
    (-23, -9.098, 2.5),
    (-23, 16.75, 2.5),
    (20.208, 16.75, 2.5),
    (23, 9.098, 2.5),
    (-20.208, -16.75, 2.5),
    (23, -16.75, 2.5),
    (38, -14.75, 2.5),
    (52.5, -14.75, 2.5),
    (52.5, 14.75, 2.5),
    (38, 14.75, 2.5),
]))
fillet.Radius = 3

doc.recompute()
